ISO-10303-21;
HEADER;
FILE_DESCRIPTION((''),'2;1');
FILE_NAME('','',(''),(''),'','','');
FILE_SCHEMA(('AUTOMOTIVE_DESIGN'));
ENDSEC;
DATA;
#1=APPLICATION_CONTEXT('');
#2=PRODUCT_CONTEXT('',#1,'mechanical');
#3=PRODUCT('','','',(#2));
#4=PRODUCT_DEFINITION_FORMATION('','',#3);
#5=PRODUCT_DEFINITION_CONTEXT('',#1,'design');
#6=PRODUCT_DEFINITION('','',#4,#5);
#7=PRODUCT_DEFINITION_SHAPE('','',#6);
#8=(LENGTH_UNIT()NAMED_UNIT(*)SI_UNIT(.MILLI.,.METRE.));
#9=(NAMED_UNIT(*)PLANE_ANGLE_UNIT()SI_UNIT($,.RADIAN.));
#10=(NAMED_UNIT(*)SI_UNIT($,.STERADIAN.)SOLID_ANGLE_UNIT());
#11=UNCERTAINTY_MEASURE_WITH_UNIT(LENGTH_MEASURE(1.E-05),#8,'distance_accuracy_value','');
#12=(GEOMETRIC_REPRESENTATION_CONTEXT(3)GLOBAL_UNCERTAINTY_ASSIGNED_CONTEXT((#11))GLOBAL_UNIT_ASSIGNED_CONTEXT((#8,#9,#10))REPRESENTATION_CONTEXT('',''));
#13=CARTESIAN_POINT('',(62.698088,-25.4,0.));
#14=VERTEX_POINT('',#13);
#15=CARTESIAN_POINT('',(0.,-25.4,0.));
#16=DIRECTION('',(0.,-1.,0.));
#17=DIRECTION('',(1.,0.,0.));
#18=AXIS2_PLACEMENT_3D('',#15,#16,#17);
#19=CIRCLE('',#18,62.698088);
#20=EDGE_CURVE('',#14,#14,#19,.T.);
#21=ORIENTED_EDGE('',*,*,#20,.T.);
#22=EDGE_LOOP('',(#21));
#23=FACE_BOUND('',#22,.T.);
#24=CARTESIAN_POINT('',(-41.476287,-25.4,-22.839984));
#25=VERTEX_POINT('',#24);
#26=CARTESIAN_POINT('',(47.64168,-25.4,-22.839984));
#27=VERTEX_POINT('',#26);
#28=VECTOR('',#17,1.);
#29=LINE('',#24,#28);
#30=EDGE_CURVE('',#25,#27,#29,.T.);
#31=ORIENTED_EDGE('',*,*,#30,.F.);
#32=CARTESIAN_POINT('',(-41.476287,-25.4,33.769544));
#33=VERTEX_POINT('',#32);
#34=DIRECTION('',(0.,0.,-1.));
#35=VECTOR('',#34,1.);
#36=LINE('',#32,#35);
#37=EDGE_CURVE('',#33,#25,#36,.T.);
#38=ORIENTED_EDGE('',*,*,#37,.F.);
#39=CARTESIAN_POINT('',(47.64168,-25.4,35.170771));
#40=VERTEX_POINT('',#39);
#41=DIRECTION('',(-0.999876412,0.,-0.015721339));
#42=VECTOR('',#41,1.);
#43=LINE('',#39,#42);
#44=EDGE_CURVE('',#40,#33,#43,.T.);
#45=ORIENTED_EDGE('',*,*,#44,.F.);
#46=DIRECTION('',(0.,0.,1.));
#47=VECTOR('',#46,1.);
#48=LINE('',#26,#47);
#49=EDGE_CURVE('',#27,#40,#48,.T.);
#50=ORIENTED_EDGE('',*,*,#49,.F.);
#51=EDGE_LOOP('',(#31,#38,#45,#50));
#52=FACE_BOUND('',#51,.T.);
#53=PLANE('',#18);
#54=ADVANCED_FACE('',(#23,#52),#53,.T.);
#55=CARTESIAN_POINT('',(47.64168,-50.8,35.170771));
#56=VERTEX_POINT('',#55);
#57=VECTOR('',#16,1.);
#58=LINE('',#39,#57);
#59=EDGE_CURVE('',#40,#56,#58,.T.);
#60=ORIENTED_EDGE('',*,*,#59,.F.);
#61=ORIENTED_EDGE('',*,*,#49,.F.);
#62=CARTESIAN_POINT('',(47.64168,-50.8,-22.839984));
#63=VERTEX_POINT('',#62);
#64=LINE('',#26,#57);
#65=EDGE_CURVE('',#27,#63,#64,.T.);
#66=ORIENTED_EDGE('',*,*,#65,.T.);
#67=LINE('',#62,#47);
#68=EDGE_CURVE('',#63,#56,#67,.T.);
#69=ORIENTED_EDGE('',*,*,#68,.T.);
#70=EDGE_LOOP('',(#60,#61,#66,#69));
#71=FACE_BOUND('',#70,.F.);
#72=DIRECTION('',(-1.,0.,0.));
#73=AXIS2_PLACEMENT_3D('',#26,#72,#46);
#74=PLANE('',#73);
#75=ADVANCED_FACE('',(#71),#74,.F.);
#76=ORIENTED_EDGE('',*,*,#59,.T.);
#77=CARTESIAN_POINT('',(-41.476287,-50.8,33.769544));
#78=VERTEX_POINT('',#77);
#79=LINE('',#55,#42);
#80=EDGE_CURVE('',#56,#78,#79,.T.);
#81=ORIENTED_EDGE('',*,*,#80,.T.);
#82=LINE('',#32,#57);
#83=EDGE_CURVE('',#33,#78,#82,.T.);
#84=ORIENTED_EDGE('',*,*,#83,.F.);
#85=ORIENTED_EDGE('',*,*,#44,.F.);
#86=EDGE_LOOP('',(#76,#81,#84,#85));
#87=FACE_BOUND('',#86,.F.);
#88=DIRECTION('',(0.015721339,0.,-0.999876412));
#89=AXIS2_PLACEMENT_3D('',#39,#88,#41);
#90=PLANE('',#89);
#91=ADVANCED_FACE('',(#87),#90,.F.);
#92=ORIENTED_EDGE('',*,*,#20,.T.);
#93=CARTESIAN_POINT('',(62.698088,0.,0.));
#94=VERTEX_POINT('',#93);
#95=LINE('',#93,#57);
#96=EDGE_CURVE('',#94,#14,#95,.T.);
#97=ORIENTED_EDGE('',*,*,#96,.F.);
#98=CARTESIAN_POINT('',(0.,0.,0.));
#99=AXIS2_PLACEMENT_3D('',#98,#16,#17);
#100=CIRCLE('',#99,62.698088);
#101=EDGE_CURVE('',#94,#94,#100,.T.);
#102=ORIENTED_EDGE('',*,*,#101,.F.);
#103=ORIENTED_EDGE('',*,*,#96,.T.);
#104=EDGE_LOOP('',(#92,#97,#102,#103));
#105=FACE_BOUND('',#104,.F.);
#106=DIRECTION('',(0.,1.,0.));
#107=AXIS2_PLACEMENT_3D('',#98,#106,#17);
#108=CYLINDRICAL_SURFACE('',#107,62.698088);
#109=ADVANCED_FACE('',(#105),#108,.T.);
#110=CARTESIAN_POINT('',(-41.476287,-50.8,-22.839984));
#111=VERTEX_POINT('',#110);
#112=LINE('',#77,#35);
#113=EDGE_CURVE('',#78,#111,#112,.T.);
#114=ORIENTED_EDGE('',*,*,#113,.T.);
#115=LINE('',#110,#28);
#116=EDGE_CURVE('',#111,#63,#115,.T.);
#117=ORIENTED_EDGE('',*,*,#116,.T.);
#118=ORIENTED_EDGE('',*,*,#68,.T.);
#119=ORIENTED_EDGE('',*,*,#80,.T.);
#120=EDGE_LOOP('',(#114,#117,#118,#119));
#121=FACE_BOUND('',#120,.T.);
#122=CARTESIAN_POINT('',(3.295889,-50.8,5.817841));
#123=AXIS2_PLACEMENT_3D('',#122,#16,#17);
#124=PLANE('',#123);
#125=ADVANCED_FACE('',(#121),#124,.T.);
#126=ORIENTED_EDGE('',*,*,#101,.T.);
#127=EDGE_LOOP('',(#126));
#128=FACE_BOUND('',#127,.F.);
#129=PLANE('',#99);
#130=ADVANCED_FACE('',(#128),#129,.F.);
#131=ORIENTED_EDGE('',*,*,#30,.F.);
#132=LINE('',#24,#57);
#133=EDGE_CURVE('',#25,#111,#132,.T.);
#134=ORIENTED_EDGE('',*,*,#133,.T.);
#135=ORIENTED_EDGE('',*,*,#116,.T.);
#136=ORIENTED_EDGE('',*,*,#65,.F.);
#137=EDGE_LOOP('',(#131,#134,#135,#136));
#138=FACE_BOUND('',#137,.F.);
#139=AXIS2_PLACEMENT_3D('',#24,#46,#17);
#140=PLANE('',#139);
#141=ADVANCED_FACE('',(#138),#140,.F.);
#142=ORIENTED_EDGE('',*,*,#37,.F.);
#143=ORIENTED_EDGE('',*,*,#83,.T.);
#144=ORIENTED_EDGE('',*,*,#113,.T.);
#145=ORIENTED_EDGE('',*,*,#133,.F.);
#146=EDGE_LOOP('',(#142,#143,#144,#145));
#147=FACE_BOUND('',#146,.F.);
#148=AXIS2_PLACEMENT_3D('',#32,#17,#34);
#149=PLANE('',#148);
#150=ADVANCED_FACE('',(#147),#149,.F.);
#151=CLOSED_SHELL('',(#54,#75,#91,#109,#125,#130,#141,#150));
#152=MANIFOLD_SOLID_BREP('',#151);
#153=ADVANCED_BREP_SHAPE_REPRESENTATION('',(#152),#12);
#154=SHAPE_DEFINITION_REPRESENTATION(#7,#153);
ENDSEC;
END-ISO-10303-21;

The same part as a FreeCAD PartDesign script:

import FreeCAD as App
import Part
import Sketcher

V = App.Vector
Q = App.Units.Quantity

doc = App.newDocument("Part")
body = doc.addObject("PartDesign::Body", "Body")

# Sketch on XZ plane
sketch1 = doc.addObject("Sketcher::SketchObject", "Sketch")
body.addObject(sketch1)
sketch1.AttachmentSupport = (doc.XZ_Plane, [""])
sketch1.MapMode = "FlatFace"
sketch1.addGeometry([
    Part.LineSegment(V(48, 18, 0), V(-52, 56, 0)),
    Part.LineSegment(V(-52, 56, 0), V(-52, -55, 0)),
    Part.LineSegment(V(-52, -55, 0), V(48, 18, 0)),
], False)
sketch1.addConstraint([
    Sketcher.Constraint("Coincident", 0, 2, 1, 1),
    Sketcher.Constraint("Coincident", 1, 2, 2, 1),
    Sketcher.Constraint("Coincident", 2, 2, 0, 1),
    Sketcher.Constraint("Vertical", 1),
    Sketcher.Constraint("Distance", 2, 123.83064),
    Sketcher.Constraint("DistanceY", 1, 2, 1, 1, 110.977095),
    Sketcher.Constraint("DistanceX", 0, 2, -1, 1, 52.405849),
    Sketcher.Constraint("DistanceY", 1, 2, -1, 1, 55.06818),
    Sketcher.Constraint("DistanceY", 2, 2, 0, 2, 38.393591),
])
pad1 = doc.addObject("PartDesign::Pad", "Pad")
body.addObject(pad1)
pad1.Profile = sketch1
pad1.Length = Q("0.001 in")
body2 = doc.addObject("PartDesign::Body", "Body001")

# Sketch on XZ plane
sketch2 = doc.addObject("Sketcher::SketchObject", "Sketch001")
body2.addObject(sketch2)
sketch2.AttachmentSupport = (doc.getObject("XZ_Plane001"), [""])
sketch2.MapMode = "FlatFace"
sketch2.addGeometry(Part.Circle(V(0, 0, 0), V(0, 0, 1), 63), False)
sketch2.addConstraint([
    Sketcher.Constraint("Coincident", 0, 3, -1, 1),
    Sketcher.Constraint("Diameter", 0, 125.396176),
])
pad2 = doc.addObject("PartDesign::Pad", "Pad001")
body2.addObject(pad2)
pad2.Profile = sketch2
pad2.Length = Q("1 in")

# Sketch on XZ plane
sketch3 = doc.addObject("Sketcher::SketchObject", "Sketch002")
body2.addObject(sketch3)
sketch3.AttachmentSupport = (doc.getObject("XZ_Plane001"), [""])
sketch3.MapMode = "FlatFace"
sketch3.AttachmentOffset = App.Placement(V(0, 0, 1 * 25.4), App.Rotation())
sketch3.addGeometry([
    Part.LineSegment(V(48, 35, 0), V(-41, 34, 0)),
    Part.LineSegment(V(-41, 34, 0), V(-41, -23, 0)),
    Part.LineSegment(V(-41, -23, 0), V(48, -23, 0)),
    Part.LineSegment(V(48, -23, 0), V(48, 35, 0)),
], False)
sketch3.addConstraint([
    Sketcher.Constraint("Coincident", 0, 2, 1, 1),
    Sketcher.Constraint("Coincident", 1, 2, 2, 1),
    Sketcher.Constraint("Coincident", 2, 2, 3, 1),
    Sketcher.Constraint("Coincident", 3, 2, 0, 1),
    Sketcher.Constraint("Vertical", 1),
    Sketcher.Constraint("Horizontal", 2),
    Sketcher.Constraint("Vertical", 3),
    Sketcher.Constraint("DistanceY", 1, 2, 1, 1, 56.609528),
    Sketcher.Constraint("Distance", 0, 89.128982),
    Sketcher.Constraint("DistanceX", 2, 1, 2, 2, 89.117967),
    Sketcher.Constraint("DistanceX", -1, 1, 2, 2, 47.64168),
    Sketcher.Constraint("DistanceY", -1, 1, 3, 2, 35.170771),
])
pad3 = doc.addObject("PartDesign::Pad", "Pad002")
body2.addObject(pad3)
pad3.Profile = sketch3
pad3.Length = Q("1 in")
body.Visibility = False

doc.recompute()
